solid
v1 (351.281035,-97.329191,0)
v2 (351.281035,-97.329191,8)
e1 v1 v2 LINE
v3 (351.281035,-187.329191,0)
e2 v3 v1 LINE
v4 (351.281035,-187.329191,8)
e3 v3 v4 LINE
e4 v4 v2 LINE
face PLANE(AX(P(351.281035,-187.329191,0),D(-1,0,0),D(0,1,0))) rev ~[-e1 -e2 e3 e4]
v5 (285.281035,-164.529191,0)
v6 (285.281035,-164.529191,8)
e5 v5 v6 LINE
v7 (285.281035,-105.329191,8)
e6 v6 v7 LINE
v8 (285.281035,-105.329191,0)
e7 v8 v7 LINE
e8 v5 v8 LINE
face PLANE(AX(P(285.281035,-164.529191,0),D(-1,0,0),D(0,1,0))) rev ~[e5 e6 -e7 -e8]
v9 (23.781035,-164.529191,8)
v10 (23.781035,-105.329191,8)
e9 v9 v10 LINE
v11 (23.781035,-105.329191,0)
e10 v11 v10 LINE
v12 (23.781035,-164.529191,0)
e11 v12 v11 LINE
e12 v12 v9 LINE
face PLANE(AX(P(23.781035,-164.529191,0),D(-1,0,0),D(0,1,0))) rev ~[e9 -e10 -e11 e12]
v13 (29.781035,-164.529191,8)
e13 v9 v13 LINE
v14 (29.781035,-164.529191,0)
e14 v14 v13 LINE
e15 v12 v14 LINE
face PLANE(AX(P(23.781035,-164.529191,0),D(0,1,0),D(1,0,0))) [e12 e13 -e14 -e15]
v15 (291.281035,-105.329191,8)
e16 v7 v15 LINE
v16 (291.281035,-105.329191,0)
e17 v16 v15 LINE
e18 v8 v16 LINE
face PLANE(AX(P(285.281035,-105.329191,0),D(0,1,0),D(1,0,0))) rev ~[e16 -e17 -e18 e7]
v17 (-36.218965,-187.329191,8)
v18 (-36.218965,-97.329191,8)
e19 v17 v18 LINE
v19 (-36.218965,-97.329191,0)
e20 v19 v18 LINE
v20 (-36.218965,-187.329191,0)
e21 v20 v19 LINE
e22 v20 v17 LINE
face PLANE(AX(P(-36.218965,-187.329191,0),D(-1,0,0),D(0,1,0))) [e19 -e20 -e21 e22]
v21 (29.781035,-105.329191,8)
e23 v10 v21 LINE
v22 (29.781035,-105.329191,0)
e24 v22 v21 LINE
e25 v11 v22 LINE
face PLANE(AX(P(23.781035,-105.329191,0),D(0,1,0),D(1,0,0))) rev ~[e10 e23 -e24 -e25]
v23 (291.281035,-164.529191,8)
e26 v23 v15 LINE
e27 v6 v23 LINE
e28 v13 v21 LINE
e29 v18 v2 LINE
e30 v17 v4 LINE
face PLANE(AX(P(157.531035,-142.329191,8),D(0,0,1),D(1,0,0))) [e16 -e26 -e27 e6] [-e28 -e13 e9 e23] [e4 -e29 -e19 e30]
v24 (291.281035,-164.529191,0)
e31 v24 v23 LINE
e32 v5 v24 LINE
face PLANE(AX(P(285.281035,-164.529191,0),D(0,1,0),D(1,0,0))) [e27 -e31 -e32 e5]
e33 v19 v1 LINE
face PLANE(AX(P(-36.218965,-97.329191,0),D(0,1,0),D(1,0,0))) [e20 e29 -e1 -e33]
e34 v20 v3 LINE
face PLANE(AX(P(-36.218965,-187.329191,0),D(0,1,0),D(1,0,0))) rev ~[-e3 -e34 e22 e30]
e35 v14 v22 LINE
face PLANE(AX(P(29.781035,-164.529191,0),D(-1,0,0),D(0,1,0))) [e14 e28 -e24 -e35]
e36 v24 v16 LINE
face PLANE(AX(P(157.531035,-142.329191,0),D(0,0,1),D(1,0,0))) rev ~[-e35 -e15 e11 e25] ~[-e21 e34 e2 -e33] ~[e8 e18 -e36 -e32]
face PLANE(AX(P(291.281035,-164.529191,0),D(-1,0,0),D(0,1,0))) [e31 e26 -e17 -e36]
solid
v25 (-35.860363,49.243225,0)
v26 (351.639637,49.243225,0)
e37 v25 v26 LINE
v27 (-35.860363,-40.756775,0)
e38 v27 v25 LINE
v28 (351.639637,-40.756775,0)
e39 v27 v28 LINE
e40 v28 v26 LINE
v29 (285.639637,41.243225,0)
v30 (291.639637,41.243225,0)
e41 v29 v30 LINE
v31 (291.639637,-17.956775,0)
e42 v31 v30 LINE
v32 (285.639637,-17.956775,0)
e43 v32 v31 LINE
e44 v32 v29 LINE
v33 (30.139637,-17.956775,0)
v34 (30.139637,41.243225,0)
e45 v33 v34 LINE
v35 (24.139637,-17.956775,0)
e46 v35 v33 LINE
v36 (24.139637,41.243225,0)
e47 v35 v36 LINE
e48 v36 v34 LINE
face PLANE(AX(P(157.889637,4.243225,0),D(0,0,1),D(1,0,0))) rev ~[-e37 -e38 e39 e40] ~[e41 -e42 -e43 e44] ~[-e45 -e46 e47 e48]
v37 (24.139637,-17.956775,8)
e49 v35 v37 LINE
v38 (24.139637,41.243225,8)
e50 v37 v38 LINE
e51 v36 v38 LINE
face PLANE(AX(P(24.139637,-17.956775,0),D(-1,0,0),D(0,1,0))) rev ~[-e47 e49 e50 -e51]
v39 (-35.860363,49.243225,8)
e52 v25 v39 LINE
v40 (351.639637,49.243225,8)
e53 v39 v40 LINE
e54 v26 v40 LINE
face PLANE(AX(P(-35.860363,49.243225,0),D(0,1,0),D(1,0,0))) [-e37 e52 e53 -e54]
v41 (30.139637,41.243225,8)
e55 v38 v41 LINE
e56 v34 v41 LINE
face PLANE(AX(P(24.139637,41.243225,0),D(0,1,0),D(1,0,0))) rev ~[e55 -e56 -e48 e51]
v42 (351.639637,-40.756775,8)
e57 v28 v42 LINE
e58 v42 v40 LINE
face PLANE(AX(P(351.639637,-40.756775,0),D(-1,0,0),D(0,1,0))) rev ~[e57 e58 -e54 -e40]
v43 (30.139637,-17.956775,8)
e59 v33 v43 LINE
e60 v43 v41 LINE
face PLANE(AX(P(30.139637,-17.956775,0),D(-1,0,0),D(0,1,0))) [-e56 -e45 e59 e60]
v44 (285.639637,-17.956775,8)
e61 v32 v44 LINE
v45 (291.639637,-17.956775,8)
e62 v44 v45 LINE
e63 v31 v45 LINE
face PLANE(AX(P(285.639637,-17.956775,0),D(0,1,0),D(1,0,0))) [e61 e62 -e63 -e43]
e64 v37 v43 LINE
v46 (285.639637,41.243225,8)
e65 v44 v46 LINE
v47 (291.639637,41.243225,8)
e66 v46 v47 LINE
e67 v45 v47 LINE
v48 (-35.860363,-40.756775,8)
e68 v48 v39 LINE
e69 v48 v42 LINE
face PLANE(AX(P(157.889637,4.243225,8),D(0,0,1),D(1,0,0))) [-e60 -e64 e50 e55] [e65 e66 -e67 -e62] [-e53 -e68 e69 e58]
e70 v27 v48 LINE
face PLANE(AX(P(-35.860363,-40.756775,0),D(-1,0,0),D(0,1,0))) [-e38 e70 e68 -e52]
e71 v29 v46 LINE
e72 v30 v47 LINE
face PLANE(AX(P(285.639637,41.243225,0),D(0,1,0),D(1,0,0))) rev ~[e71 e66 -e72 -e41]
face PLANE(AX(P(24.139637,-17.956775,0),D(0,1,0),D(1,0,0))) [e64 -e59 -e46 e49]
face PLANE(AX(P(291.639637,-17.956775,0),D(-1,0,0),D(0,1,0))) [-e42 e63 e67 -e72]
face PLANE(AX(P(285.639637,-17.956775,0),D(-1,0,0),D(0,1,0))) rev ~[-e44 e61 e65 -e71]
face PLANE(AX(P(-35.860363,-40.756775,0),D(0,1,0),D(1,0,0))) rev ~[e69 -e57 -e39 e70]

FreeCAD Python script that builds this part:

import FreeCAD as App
import Part
import Sketcher
from FreeCAD import Vector
Q = App.Units.Quantity


def add_polygon(sketch, points):
    """Adds a closed chain of lines whose ends are joined by coincident constraints."""
    first, n = sketch.GeometryCount, len(points)
    for a, b in zip(points, points[1:] + points[:1]):
        sketch.addGeometry(Part.LineSegment(App.Vector(*a, 0), App.Vector(*b, 0)), False)
    for i in range(n):
        sketch.addConstraint(Sketcher.Constraint("Coincident", first + i, 2, first + (i + 1) % n, 1))

doc = App.newDocument("Part")
body = doc.addObject("PartDesign::Body", "Body")

# Sketch on XY plane
sketch1 = body.newObject("Sketcher::SketchObject", "Sketch")
sketch1.AttachmentSupport = (doc.getObject("XY_Plane"), [""])
sketch1.MapMode = "FlatFace"
add_polygon(sketch1, [(-36, 49), (-36, -41), (352, -41), (352, 49)])  # lines 0-3
add_polygon(sketch1, [(30, -18), (24, -18), (24, 41), (30, 41)])  # lines 4-7
add_polygon(sketch1, [(292, -18), (286, -18), (286, 41), (292, 41)])  # lines 8-11
sketch1.addConstraint([
    Sketcher.Constraint("Vertical", 0),
    Sketcher.Constraint("Horizontal", 1),
    Sketcher.Constraint("Vertical", 2),
    Sketcher.Constraint("Horizontal", 3),
    Sketcher.Constraint("Horizontal", 4),
    Sketcher.Constraint("Vertical", 5),
    Sketcher.Constraint("Horizontal", 6),
    Sketcher.Constraint("Vertical", 7),
    Sketcher.Constraint("Horizontal", 8),
    Sketcher.Constraint("Vertical", 9),
    Sketcher.Constraint("Horizontal", 10),
    Sketcher.Constraint("Vertical", 11),
    Sketcher.Constraint("Horizontal", 7, 2, 8, 2),
    Sketcher.Constraint("Horizontal", 6, 2, 9, 2),
    Sketcher.Constraint("Equal", 6, 8),
    Sketcher.Constraint("DistanceX", 4, 2, 4, 1, Q("6 mm")),
    Sketcher.Constraint("DistanceY", 0, 2, 0, 1, Q("90 mm")),
    Sketcher.Constraint("DistanceX", 1, 1, 1, 2, Q("387.5 mm")),
    Sketcher.Constraint("DistanceY", 5, 1, 5, 2, Q("59.2 mm")),
    Sketcher.Constraint("DistanceX", 0, 2, 4, 2, Q("60 mm")),
    Sketcher.Constraint("DistanceY", 5, 2, 3, 2, Q("8 mm")),
    Sketcher.Constraint("DistanceX", 8, 2, 1, 2, Q("66 mm")),
    Sketcher.Constraint("DistanceX", 0, 2, -1, 1, Q("35.860363 mm")),
    Sketcher.Constraint("DistanceY", 0, 2, -1, 1, Q("40.756775 mm")),
])
pad1 = body.newObject("PartDesign::Pad", "Pad")
pad1.Profile = sketch1
pad1.Length = 8
body2 = doc.addObject("PartDesign::Body", "Body001")

# Sketch on XY plane
sketch2 = body2.newObject("Sketcher::SketchObject", "Sketch001")
sketch2.AttachmentSupport = (doc.getObject("XY_Plane001"), [""])
sketch2.MapMode = "FlatFace"
add_polygon(sketch2, [(-36, -97), (-36, -187), (351, -187), (351, -97)])  # lines 0-3
add_polygon(sketch2, [(30, -165), (24, -165), (24, -105), (30, -105)])  # lines 4-7
add_polygon(sketch2, [(291, -165), (285, -165), (285, -105), (291, -105)])  # lines 8-11
sketch2.addConstraint([
    Sketcher.Constraint("Vertical", 0),
    Sketcher.Constraint("Horizontal", 1),
    Sketcher.Constraint("Vertical", 2),
    Sketcher.Constraint("Horizontal", 3),
    Sketcher.Constraint("Horizontal", 4),
    Sketcher.Constraint("Vertical", 5),
    Sketcher.Constraint("Horizontal", 6),
    Sketcher.Constraint("Vertical", 7),
    Sketcher.Constraint("Horizontal", 8),
    Sketcher.Constraint("Vertical", 9),
    Sketcher.Constraint("Horizontal", 10),
    Sketcher.Constraint("Vertical", 11),
    Sketcher.Constraint("Horizontal", 7, 2, 8, 2),
    Sketcher.Constraint("Horizontal", 6, 2, 9, 2),
    Sketcher.Constraint("Equal", 6, 8),
    Sketcher.Constraint("DistanceX", 4, 2, 4, 1, Q("6 mm")),
    Sketcher.Constraint("DistanceY", 0, 2, 0, 1, Q("90 mm")),
    Sketcher.Constraint("DistanceX", 1, 1, 1, 2, Q("387.5 mm")),
    Sketcher.Constraint("DistanceY", 5, 1, 5, 2, Q("59.2 mm")),
    Sketcher.Constraint("DistanceX", 0, 2, 4, 2, Q("60 mm")),
    Sketcher.Constraint("DistanceY", 5, 2, 3, 2, Q("8 mm")),
    Sketcher.Constraint("DistanceX", 8, 2, 1, 2, Q("66 mm")),
    Sketcher.Constraint("DistanceY", 0, 2, -1, 1, Q("187.329191 mm")),
    Sketcher.Constraint("DistanceX", 0, 2, -1, 1, Q("36.218965 mm")),
])
pad2 = body2.newObject("PartDesign::Pad", "Pad001")
pad2.Profile = sketch2
pad2.Length = 8

doc.recompute()
